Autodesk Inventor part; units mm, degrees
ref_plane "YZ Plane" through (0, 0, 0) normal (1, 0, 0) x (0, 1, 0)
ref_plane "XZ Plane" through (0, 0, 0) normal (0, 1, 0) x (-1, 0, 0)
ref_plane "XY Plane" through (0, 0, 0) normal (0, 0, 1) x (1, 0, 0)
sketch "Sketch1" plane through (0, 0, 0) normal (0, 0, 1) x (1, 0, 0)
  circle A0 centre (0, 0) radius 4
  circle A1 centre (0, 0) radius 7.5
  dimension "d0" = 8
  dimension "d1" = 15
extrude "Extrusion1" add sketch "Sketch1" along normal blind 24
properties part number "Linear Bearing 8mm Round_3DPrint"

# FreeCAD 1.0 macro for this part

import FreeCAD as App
import Part
import Sketcher
from FreeCAD import Vector
Q = App.Units.Quantity

doc = App.newDocument("Part")
body = doc.addObject("PartDesign::Body", "Body")

# Sketch on XY plane
sketch1 = doc.addObject("Sketcher::SketchObject", "Sketch")
body.addObject(sketch1)
sketch1.AttachmentSupport = (doc.XY_Plane, [""])
sketch1.MapMode = "FlatFace"
sketch1.addGeometry([
    Part.Circle(Vector(0, 0, 0), Vector(0, 0, 1), 7.5),
    Part.Circle(Vector(0, 0, 0), Vector(0, 0, 1), 4),
], False)
sketch1.addConstraint([
    Sketcher.Constraint("Coincident", 0, 3, -1, 1),
    Sketcher.Constraint("Coincident", 1, 3, -1, 1),
    Sketcher.Constraint("Diameter", 0, Q("15 mm")),
    Sketcher.Constraint("Diameter", 1, Q("8 mm")),
])
pad1 = doc.addObject("PartDesign::Pad", "Pad")
body.addObject(pad1)
pad1.Profile = sketch1
pad1.Length = 24

doc.recompute()
